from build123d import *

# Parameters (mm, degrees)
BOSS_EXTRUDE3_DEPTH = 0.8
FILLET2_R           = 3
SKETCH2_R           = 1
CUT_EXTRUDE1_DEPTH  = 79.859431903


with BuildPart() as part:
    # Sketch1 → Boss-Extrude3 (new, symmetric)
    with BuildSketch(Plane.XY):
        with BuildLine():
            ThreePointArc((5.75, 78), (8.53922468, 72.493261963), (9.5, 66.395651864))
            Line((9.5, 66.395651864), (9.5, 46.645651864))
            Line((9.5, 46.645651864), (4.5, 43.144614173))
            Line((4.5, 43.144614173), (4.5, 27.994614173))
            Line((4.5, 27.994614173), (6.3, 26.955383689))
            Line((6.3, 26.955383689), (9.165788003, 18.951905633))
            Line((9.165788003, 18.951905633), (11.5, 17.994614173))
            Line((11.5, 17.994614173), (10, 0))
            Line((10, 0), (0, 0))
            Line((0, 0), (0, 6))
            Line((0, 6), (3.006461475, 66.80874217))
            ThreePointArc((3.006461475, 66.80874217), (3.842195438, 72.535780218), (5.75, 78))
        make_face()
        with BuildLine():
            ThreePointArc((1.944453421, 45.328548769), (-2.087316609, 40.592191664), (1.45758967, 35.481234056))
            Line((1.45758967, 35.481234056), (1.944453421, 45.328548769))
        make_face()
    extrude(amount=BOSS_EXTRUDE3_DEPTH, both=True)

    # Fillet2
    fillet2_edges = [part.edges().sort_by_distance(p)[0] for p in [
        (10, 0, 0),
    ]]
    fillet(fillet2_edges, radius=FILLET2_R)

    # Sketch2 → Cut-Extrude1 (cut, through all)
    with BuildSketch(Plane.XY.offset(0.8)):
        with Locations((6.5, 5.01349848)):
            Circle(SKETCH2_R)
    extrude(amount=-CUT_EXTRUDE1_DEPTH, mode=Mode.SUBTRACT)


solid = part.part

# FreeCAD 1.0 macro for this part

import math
import FreeCAD as App
import Part
import Sketcher
from FreeCAD import Vector
Q = App.Units.Quantity


def edges_at(feature, points):
    """Names of the edges that pass closest to the given points."""
    edges = feature.Shape.Edges
    near = lambda p: min(range(len(edges)), key=lambda i: edges[i].distToShape(Part.Vertex(*p))[0])
    return sorted({f"Edge{near(p) + 1}" for p in points})

doc = App.newDocument("Part")
body = doc.addObject("PartDesign::Body", "Body")

# Sketch on XY plane
sketch1 = body.newObject("Sketcher::SketchObject", "Sketch")
sketch1.AttachmentSupport = (doc.getObject("XY_Plane"), [""])
sketch1.MapMode = "FlatFace"
sketch1.addGeometry(Part.ArcOfCircle(Part.Circle(Vector(-10.3, 66.4, 0), Vector(0, 0, 1), 19.8), math.radians(0), math.radians(36)), False)
sketch1.addGeometry(Part.ArcOfCircle(Part.Circle(Vector(33.3, 65.3, 0), Vector(0, 0, 1), 30.3), math.radians(155), math.radians(177)), False)
sketch1.addGeometry(Part.LineSegment(Vector(3, 66.8, 0), Vector(1.9, 45.3, 0)), False)
sketch1.addGeometry(Part.ArcOfCircle(Part.Circle(Vector(3, 40.3, 0), Vector(0, 0, 1), 5.1), math.radians(102), math.radians(252)), False)
sketch1.addGeometry(Part.LineSegment(Vector(1.5, 35.5, 0), Vector(0, 6, 0)), False)
sketch1.addGeometry(Part.LineSegment(Vector(0, 6, 0), Vector(0, 0, 0)), False)
sketch1.addGeometry(Part.LineSegment(Vector(0, 0, 0), Vector(10, 0, 0)), False)
sketch1.addGeometry(Part.LineSegment(Vector(10, 0, 0), Vector(11.5, 18, 0)), False)
sketch1.addGeometry(Part.LineSegment(Vector(11.5, 18, 0), Vector(9.2, 19, 0)), False)
sketch1.addGeometry(Part.LineSegment(Vector(9.2, 19, 0), Vector(6.3, 27, 0)), False)
sketch1.addGeometry(Part.LineSegment(Vector(6.3, 27, 0), Vector(4.5, 28, 0)), False)
sketch1.addGeometry(Part.LineSegment(Vector(4.5, 28, 0), Vector(4.5, 43.1, 0)), False)
sketch1.addGeometry(Part.LineSegment(Vector(4.5, 43.1, 0), Vector(9.5, 46.6, 0)), False)
sketch1.addGeometry(Part.LineSegment(Vector(9.5, 46.6, 0), Vector(9.5, 66.4, 0)), False)
sketch1.addConstraint(Sketcher.Constraint("Coincident", 0, 2, 1, 1))
sketch1.addConstraint(Sketcher.Constraint("Tangent", 1, 2, 2, 1))
sketch1.addConstraint(Sketcher.Constraint("Coincident", 2, 2, 3, 1))
sketch1.addConstraint(Sketcher.Constraint("Coincident", 3, 2, 4, 1))
sketch1.addConstraint(Sketcher.Constraint("Coincident", 4, 2, 5, 1))
sketch1.addConstraint(Sketcher.Constraint("Coincident", 5, 2, 6, 1))
sketch1.addConstraint(Sketcher.Constraint("Coincident", 6, 2, 7, 1))
sketch1.addConstraint(Sketcher.Constraint("Coincident", 7, 2, 8, 1))
sketch1.addConstraint(Sketcher.Constraint("Coincident", 8, 2, 9, 1))
sketch1.addConstraint(Sketcher.Constraint("Coincident", 9, 2, 10, 1))
sketch1.addConstraint(Sketcher.Constraint("Coincident", 10, 2, 11, 1))
sketch1.addConstraint(Sketcher.Constraint("Coincident", 11, 2, 12, 1))
sketch1.addConstraint(Sketcher.Constraint("Coincident", 12, 2, 13, 1))
sketch1.addConstraint(Sketcher.Constraint("Tangent", 13, 2, 0, 1))
sketch1.addConstraint(Sketcher.Constraint("Vertical", 5))
sketch1.addConstraint(Sketcher.Constraint("Horizontal", 6))
sketch1.addConstraint(Sketcher.Constraint("Vertical", 11))
sketch1.addConstraint(Sketcher.Constraint("Vertical", 13))
sketch1.addConstraint(Sketcher.Constraint("Coincident", 5, 2, -1, 1))
sketch1.addConstraint(Sketcher.Constraint("Parallel", 2, 4))
sketch1.addConstraint(Sketcher.Constraint("Vertical", 3, 3, 1, 2))
sketch1.addConstraint(Sketcher.Constraint("Radius", 3, 5.1))
sketch1.addConstraint(Sketcher.Constraint("DistanceX", 6, 1, 6, 2, 10.0))
sketch1.addConstraint(Sketcher.Constraint("DistanceY", 5, 2, 5, 1, 6.0))
sketch1.addConstraint(Sketcher.Constraint("Angle", 10, Q("150 deg")))
sketch1.addConstraint(Sketcher.Constraint("Angle", 12, Q("35 deg")))
sketch1.addConstraint(Sketcher.Constraint("DistanceY", -1, 1, 0, 2, 78.0))
sketch1.addConstraint(Sketcher.Constraint("DistanceX", 10, 2, 7, 2, 7.0))
sketch1.addConstraint(Sketcher.Constraint("DistanceY", 7, 2, 10, 2, 10.0))
sketch1.addConstraint(Sketcher.Constraint("DistanceX", 11, 2, 12, 2, 5.0))
sketch1.addConstraint(Sketcher.Constraint("DistanceY", 11, 1, 11, 2, 15.15))
sketch1.addConstraint(Sketcher.Constraint("DistanceY", 13, 1, 13, 2, 19.75))
sketch1.addConstraint(Sketcher.Constraint("DistanceX", -1, 1, 7, 2, 11.5))
sketch1.addConstraint(Sketcher.Constraint("DistanceX", -1, 1, 9, 2, 6.3))
sketch1.addConstraint(Sketcher.Constraint("DistanceX", -1, 1, 0, 2, 5.75))
sketch1.addConstraint(Sketcher.Constraint("Radius", 0, 19.829786))
sketch1.addConstraint(Sketcher.Constraint("Radius", 1, 30.346932))
sketch1.addConstraint(Sketcher.Constraint("DistanceY", 3, 3, 2, 2, 4.9882))
sketch1.addConstraint(Sketcher.Constraint("DistanceX", 3, 2, 8, 2, 7.708198))
sketch1.addConstraint(Sketcher.Constraint("Distance", 2, 21.506431))
sketch1.addConstraint(Sketcher.Constraint("DistanceX", -1, 1, 1, 3, 33.316371))
sketch1.addConstraint(Sketcher.Constraint("DistanceY", 7, 2, 8, 2, 0.957291))
pad1 = body.newObject("PartDesign::Pad", "Pad")
pad1.Profile = sketch1
pad1.Length = 1.6
pad1.Midplane = True
doc.recompute()

fillet = body.newObject("PartDesign::Fillet", "Fillet")
fillet.Base = (pad1, edges_at(pad1, [(10, 0, 0)]))
fillet.Radius = 3

# Sketch on XY plane
sketch2 = body.newObject("Sketcher::SketchObject", "Sketch001")
sketch2.AttachmentSupport = (doc.getObject("XY_Plane"), [""])
sketch2.MapMode = "FlatFace"
sketch2.AttachmentOffset = App.Placement(Vector(0, 0, 0.8), App.Rotation())
sketch2.addGeometry(Part.Circle(Vector(6.5, 5, 0), Vector(0, 0, 1), 1), False)
sketch2.addConstraint(Sketcher.Constraint("Diameter", 0, 2.0))
sketch2.addConstraint(Sketcher.Constraint("DistanceX", -1, 1, 0, 3, 6.5))
sketch2.addConstraint(Sketcher.Constraint("DistanceY", -1, 1, 0, 3, 5.013498))
pocket1 = body.newObject("PartDesign::Pocket", "Pocket")
pocket1.Profile = sketch2
pocket1.Type = "ThroughAll"

doc.recompute()
